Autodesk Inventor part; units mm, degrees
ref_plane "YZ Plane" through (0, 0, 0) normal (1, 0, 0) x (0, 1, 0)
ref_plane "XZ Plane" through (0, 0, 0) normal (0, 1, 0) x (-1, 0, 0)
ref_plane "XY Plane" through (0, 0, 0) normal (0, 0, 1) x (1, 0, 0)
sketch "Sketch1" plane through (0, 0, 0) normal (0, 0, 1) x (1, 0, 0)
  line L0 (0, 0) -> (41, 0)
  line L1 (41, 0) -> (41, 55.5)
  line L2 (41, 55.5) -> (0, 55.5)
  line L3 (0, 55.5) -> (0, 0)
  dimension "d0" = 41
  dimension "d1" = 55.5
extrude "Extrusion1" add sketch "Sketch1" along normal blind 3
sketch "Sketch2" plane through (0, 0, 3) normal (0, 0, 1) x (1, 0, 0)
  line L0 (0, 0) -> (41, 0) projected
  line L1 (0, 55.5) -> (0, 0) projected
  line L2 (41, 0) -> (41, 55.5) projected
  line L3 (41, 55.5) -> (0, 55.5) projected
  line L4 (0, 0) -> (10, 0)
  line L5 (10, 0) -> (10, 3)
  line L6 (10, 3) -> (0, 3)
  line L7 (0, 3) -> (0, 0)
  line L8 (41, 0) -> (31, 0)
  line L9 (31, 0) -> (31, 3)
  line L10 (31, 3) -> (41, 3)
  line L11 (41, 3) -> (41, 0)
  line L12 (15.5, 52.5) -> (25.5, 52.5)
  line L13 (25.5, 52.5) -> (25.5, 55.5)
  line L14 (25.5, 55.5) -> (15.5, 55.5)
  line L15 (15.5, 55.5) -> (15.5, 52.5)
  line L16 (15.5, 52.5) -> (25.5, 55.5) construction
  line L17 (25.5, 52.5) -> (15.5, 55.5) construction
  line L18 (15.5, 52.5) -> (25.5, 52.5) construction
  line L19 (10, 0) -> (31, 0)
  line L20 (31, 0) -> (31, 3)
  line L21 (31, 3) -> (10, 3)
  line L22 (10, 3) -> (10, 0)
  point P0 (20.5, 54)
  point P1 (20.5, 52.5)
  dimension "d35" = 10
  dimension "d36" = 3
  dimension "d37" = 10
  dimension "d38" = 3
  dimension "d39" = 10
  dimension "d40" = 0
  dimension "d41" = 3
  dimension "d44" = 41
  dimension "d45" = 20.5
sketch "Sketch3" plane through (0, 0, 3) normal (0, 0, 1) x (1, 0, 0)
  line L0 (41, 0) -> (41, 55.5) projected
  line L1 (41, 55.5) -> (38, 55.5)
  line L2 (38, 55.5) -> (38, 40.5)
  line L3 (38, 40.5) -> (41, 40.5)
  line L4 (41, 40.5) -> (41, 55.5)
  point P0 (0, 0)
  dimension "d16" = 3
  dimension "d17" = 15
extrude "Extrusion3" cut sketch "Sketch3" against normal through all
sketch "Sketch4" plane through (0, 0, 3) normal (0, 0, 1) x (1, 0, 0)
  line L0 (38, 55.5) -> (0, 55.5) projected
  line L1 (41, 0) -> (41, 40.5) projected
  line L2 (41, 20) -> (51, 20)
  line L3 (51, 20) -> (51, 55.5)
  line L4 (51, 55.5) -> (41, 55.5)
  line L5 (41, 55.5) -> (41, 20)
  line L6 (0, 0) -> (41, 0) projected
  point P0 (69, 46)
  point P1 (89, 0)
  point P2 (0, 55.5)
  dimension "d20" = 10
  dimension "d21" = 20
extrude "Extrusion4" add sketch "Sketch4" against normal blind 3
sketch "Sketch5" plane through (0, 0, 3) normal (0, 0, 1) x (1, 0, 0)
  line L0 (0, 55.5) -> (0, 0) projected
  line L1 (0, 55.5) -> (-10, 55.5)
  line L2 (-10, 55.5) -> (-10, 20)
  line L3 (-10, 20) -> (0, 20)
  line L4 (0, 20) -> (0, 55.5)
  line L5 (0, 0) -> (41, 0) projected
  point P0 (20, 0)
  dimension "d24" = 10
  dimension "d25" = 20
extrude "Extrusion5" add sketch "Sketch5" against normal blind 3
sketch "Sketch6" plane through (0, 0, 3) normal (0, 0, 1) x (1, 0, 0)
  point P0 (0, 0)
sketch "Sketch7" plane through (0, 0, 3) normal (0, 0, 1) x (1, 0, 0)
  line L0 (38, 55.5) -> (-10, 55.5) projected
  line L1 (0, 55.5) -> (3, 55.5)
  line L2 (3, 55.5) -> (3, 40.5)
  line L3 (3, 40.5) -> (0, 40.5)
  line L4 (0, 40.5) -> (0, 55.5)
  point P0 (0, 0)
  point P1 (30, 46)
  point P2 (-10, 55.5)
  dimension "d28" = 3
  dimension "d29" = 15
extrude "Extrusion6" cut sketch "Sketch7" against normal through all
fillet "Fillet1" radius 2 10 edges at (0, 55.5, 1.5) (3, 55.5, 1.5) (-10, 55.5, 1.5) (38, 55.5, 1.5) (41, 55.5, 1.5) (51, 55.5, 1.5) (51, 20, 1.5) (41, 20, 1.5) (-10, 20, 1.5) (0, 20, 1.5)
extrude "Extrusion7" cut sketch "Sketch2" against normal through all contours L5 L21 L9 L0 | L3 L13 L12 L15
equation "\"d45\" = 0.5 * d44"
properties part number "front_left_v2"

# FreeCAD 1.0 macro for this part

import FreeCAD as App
import Part
import Sketcher
Q = App.Units.Quantity


def edges_at(feature, points):
    """Names of the edges that pass closest to the given points."""
    edges = feature.Shape.Edges
    near = lambda p: min(range(len(edges)), key=lambda i: edges[i].distToShape(Part.Vertex(*p))[0])
    return sorted({f"Edge{near(p) + 1}" for p in points})

doc = App.newDocument("Part")
params = doc.addObject("Spreadsheet::Sheet", "Params")
for row, (alias, value) in enumerate([
    ("sketch1_width", "41 mm"),
    ("sketch1_height", "55.5 mm"),
    ("pad1_length", "3 mm"),
    ("sketch2_width", "3 mm"),
    ("sketch2_height", "15 mm"),
    ("sketch3_width", "10 mm"),
    ("sketch3_height", "35.5 mm"),
    ("pad2_length", "3 mm"),
    ("sketch4_width", "10 mm"),
    ("sketch4_height", "35.5 mm"),
    ("pad3_length", "3 mm"),
    ("sketch5_width", "3 mm"),
    ("sketch5_height", "15 mm"),
    ("fillet_radius", "2 mm"),
    ("sketch6_width", "10 mm"),
    ("sketch6_height", "3 mm"),
    ("sketch6_width2", "21 mm"),
], start=1):
    params.set(f"A{row}", alias)
    params.set(f"B{row}", "=" + value)
    params.setAlias(f"B{row}", alias)

body = doc.addObject("PartDesign::Body", "Body")

# Sketch on XY plane
sketch1 = body.newObject("Sketcher::SketchObject", "Sketch")
sketch1.AttachmentSupport = (doc.getObject("XY_Plane"), [""])
sketch1.MapMode = "FlatFace"
sketch1.addGeometry(Part.LineSegment(App.Vector(0, 55.5, 0), App.Vector(0, 0, 0)), False)
sketch1.addGeometry(Part.LineSegment(App.Vector(0, 0, 0), App.Vector(41, 0, 0)), False)
sketch1.addGeometry(Part.LineSegment(App.Vector(41, 0, 0), App.Vector(41, 55.5, 0)), False)
sketch1.addGeometry(Part.LineSegment(App.Vector(41, 55.5, 0), App.Vector(0, 55.5, 0)), False)
sketch1.addConstraint(Sketcher.Constraint("Coincident", 0, 2, 1, 1))
sketch1.addConstraint(Sketcher.Constraint("Coincident", 1, 2, 2, 1))
sketch1.addConstraint(Sketcher.Constraint("Coincident", 2, 2, 3, 1))
sketch1.addConstraint(Sketcher.Constraint("Coincident", 3, 2, 0, 1))
sketch1.addConstraint(Sketcher.Constraint("Vertical", 0))
sketch1.addConstraint(Sketcher.Constraint("Horizontal", 1))
sketch1.addConstraint(Sketcher.Constraint("Vertical", 2))
sketch1.addConstraint(Sketcher.Constraint("Horizontal", 3))
sketch1.addConstraint(Sketcher.Constraint("Coincident", 0, 2, -1, 1))
sketch1.addConstraint(Sketcher.Constraint("DistanceX", 1, 1, 1, 2, Q("41 mm")))
sketch1.addConstraint(Sketcher.Constraint("DistanceY", 0, 2, 0, 1, Q("55.5 mm")))
sketch1.setExpression("Constraints[9]", "Params.sketch1_width")
sketch1.setExpression("Constraints[10]", "Params.sketch1_height")
pad1 = body.newObject("PartDesign::Pad", "Pad")
pad1.Profile = sketch1
pad1.setExpression("Length", "Params.pad1_length")

# Sketch on XY plane
sketch2 = body.newObject("Sketcher::SketchObject", "Sketch001")
sketch2.AttachmentSupport = (doc.getObject("XY_Plane"), [""])
sketch2.MapMode = "FlatFace"
sketch2.AttachmentOffset = App.Placement(App.Vector(0, 0, 3), App.Rotation())
sketch2.addGeometry(Part.LineSegment(App.Vector(38, 40.5, 0), App.Vector(41, 40.5, 0)), False)
sketch2.addGeometry(Part.LineSegment(App.Vector(41, 40.5, 0), App.Vector(41, 55.5, 0)), False)
sketch2.addGeometry(Part.LineSegment(App.Vector(41, 55.5, 0), App.Vector(38, 55.5, 0)), False)
sketch2.addGeometry(Part.LineSegment(App.Vector(38, 55.5, 0), App.Vector(38, 40.5, 0)), False)
sketch2.addConstraint(Sketcher.Constraint("Coincident", 0, 2, 1, 1))
sketch2.addConstraint(Sketcher.Constraint("Coincident", 1, 2, 2, 1))
sketch2.addConstraint(Sketcher.Constraint("Coincident", 2, 2, 3, 1))
sketch2.addConstraint(Sketcher.Constraint("Coincident", 3, 2, 0, 1))
sketch2.addConstraint(Sketcher.Constraint("Horizontal", 0))
sketch2.addConstraint(Sketcher.Constraint("Vertical", 1))
sketch2.addConstraint(Sketcher.Constraint("Horizontal", 2))
sketch2.addConstraint(Sketcher.Constraint("Vertical", 3))
sketch2.addConstraint(Sketcher.Constraint("DistanceX", 0, 1, 0, 2, Q("3 mm")))
sketch2.addConstraint(Sketcher.Constraint("DistanceY", 1, 1, 1, 2, Q("15 mm")))
sketch2.addConstraint(Sketcher.Constraint("DistanceX", -1, 1, 0, 2, Q("41 mm")))
sketch2.addConstraint(Sketcher.Constraint("DistanceY", -1, 1, 0, 2, Q("40.5 mm")))
sketch2.setExpression("Constraints[8]", "Params.sketch2_width")
sketch2.setExpression("Constraints[9]", "Params.sketch2_height")
pocket1 = body.newObject("PartDesign::Pocket", "Pocket")
pocket1.Profile = sketch2
pocket1.Type = "ThroughAll"

# Sketch on XY plane
sketch3 = body.newObject("Sketcher::SketchObject", "Sketch002")
sketch3.AttachmentSupport = (doc.getObject("XY_Plane"), [""])
sketch3.MapMode = "FlatFace"
sketch3.AttachmentOffset = App.Placement(App.Vector(0, 0, 3), App.Rotation())
sketch3.addGeometry(Part.LineSegment(App.Vector(41, 55.5, 0), App.Vector(41, 20, 0)), False)
sketch3.addGeometry(Part.LineSegment(App.Vector(41, 20, 0), App.Vector(51, 20, 0)), False)
sketch3.addGeometry(Part.LineSegment(App.Vector(51, 20, 0), App.Vector(51, 55.5, 0)), False)
sketch3.addGeometry(Part.LineSegment(App.Vector(51, 55.5, 0), App.Vector(41, 55.5, 0)), False)
sketch3.addConstraint(Sketcher.Constraint("Coincident", 0, 2, 1, 1))
sketch3.addConstraint(Sketcher.Constraint("Coincident", 1, 2, 2, 1))
sketch3.addConstraint(Sketcher.Constraint("Coincident", 2, 2, 3, 1))
sketch3.addConstraint(Sketcher.Constraint("Coincident", 3, 2, 0, 1))
sketch3.addConstraint(Sketcher.Constraint("Vertical", 0))
sketch3.addConstraint(Sketcher.Constraint("Horizontal", 1))
sketch3.addConstraint(Sketcher.Constraint("Vertical", 2))
sketch3.addConstraint(Sketcher.Constraint("Horizontal", 3))
sketch3.addConstraint(Sketcher.Constraint("DistanceX", 1, 1, 1, 2, Q("10 mm")))
sketch3.addConstraint(Sketcher.Constraint("DistanceY", -1, 1, 0, 2, Q("20 mm")))
sketch3.addConstraint(Sketcher.Constraint("DistanceY", 0, 2, 0, 1, Q("35.5 mm")))
sketch3.addConstraint(Sketcher.Constraint("DistanceX", -1, 1, 0, 2, Q("41 mm")))
sketch3.setExpression("Constraints[8]", "Params.sketch3_width")
sketch3.setExpression("Constraints[10]", "Params.sketch3_height")
pad2 = body.newObject("PartDesign::Pad", "Pad001")
pad2.Profile = sketch3
pad2.setExpression("Length", "Params.pad2_length")
pad2.Reversed = True

# Sketch on XY plane
sketch4 = body.newObject("Sketcher::SketchObject", "Sketch003")
sketch4.AttachmentSupport = (doc.getObject("XY_Plane"), [""])
sketch4.MapMode = "FlatFace"
sketch4.AttachmentOffset = App.Placement(App.Vector(0, 0, 3), App.Rotation())
sketch4.addGeometry(Part.LineSegment(App.Vector(0, 20, 0), App.Vector(0, 55.5, 0)), False)
sketch4.addGeometry(Part.LineSegment(App.Vector(0, 55.5, 0), App.Vector(-10, 55.5, 0)), False)
sketch4.addGeometry(Part.LineSegment(App.Vector(-10, 55.5, 0), App.Vector(-10, 20, 0)), False)
sketch4.addGeometry(Part.LineSegment(App.Vector(-10, 20, 0), App.Vector(0, 20, 0)), False)
sketch4.addConstraint(Sketcher.Constraint("Coincident", 0, 2, 1, 1))
sketch4.addConstraint(Sketcher.Constraint("Coincident", 1, 2, 2, 1))
sketch4.addConstraint(Sketcher.Constraint("Coincident", 2, 2, 3, 1))
sketch4.addConstraint(Sketcher.Constraint("Coincident", 3, 2, 0, 1))
sketch4.addConstraint(Sketcher.Constraint("Vertical", 0))
sketch4.addConstraint(Sketcher.Constraint("Horizontal", 1))
sketch4.addConstraint(Sketcher.Constraint("Vertical", 2))
sketch4.addConstraint(Sketcher.Constraint("Horizontal", 3))
sketch4.addConstraint(Sketcher.Constraint("PointOnObject", 0, 2, -2))
sketch4.addConstraint(Sketcher.Constraint("DistanceX", 1, 2, 1, 1, Q("10 mm")))
sketch4.addConstraint(Sketcher.Constraint("DistanceY", -1, 1, 2, 2, Q("20 mm")))
sketch4.addConstraint(Sketcher.Constraint("DistanceY", 0, 1, 0, 2, Q("35.5 mm")))
sketch4.setExpression("Constraints[9]", "Params.sketch4_width")
sketch4.setExpression("Constraints[11]", "Params.sketch4_height")
pad3 = body.newObject("PartDesign::Pad", "Pad002")
pad3.Profile = sketch4
pad3.setExpression("Length", "Params.pad3_length")
pad3.Reversed = True

# Sketch on XY plane
sketch5 = body.newObject("Sketcher::SketchObject", "Sketch004")
sketch5.AttachmentSupport = (doc.getObject("XY_Plane"), [""])
sketch5.MapMode = "FlatFace"
sketch5.AttachmentOffset = App.Placement(App.Vector(0, 0, 3), App.Rotation())
sketch5.addGeometry(Part.LineSegment(App.Vector(3, 40.5, 0), App.Vector(3, 55.5, 0)), False)
sketch5.addGeometry(Part.LineSegment(App.Vector(3, 55.5, 0), App.Vector(0, 55.5, 0)), False)
sketch5.addGeometry(Part.LineSegment(App.Vector(0, 55.5, 0), App.Vector(0, 40.5, 0)), False)
sketch5.addGeometry(Part.LineSegment(App.Vector(0, 40.5, 0), App.Vector(3, 40.5, 0)), False)
sketch5.addConstraint(Sketcher.Constraint("Coincident", 0, 2, 1, 1))
sketch5.addConstraint(Sketcher.Constraint("Coincident", 1, 2, 2, 1))
sketch5.addConstraint(Sketcher.Constraint("Coincident", 2, 2, 3, 1))
sketch5.addConstraint(Sketcher.Constraint("Coincident", 3, 2, 0, 1))
sketch5.addConstraint(Sketcher.Constraint("Vertical", 0))
sketch5.addConstraint(Sketcher.Constraint("Horizontal", 1))
sketch5.addConstraint(Sketcher.Constraint("Vertical", 2))
sketch5.addConstraint(Sketcher.Constraint("Horizontal", 3))
sketch5.addConstraint(Sketcher.Constraint("PointOnObject", 1, 2, -2))
sketch5.addConstraint(Sketcher.Constraint("DistanceX", 1, 2, 1, 1, Q("3 mm")))
sketch5.addConstraint(Sketcher.Constraint("DistanceY", 0, 1, 0, 2, Q("15 mm")))
sketch5.addConstraint(Sketcher.Constraint("DistanceY", -1, 1, 0, 2, Q("55.5 mm")))
sketch5.setExpression("Constraints[9]", "Params.sketch5_width")
sketch5.setExpression("Constraints[10]", "Params.sketch5_height")
pocket2 = body.newObject("PartDesign::Pocket", "Pocket001")
pocket2.Profile = sketch5
pocket2.Type = "ThroughAll"
doc.recompute()

fillet = body.newObject("PartDesign::Fillet", "Fillet")
fillet.Base = (pocket2, edges_at(pocket2, [
    (0, 55.5, 1.5),
    (3, 55.5, 1.5),
    (-10, 55.5, 1.5),
    (38, 55.5, 1.5),
    (41, 55.5, 1.5),
    (51, 55.5, 1.5),
    (51, 20, 1.5),
    (41, 20, 1.5),
    (-10, 20, 1.5),
    (0, 20, 1.5),
]))
fillet.setExpression("Radius", "Params.fillet_radius")

# Sketch on XY plane
sketch6 = body.newObject("Sketcher::SketchObject", "Sketch005")
sketch6.AttachmentSupport = (doc.getObject("XY_Plane"), [""])
sketch6.MapMode = "FlatFace"
sketch6.AttachmentOffset = App.Placement(App.Vector(0, 0, 3), App.Rotation())
sketch6.addGeometry(Part.LineSegment(App.Vector(10, 3, 0), App.Vector(10, 0, 0)), False)
sketch6.addGeometry(Part.LineSegment(App.Vector(10, 0, 0), App.Vector(31, 0, 0)), False)
sketch6.addGeometry(Part.LineSegment(App.Vector(31, 0, 0), App.Vector(31, 3, 0)), False)
sketch6.addGeometry(Part.LineSegment(App.Vector(31, 3, 0), App.Vector(10, 3, 0)), False)
sketch6.addGeometry(Part.LineSegment(App.Vector(25.5, 55.5, 0), App.Vector(15.5, 55.5, 0)), False)
sketch6.addGeometry(Part.LineSegment(App.Vector(15.5, 55.5, 0), App.Vector(15.5, 52.5, 0)), False)
sketch6.addGeometry(Part.LineSegment(App.Vector(15.5, 52.5, 0), App.Vector(25.5, 52.5, 0)), False)
sketch6.addGeometry(Part.LineSegment(App.Vector(25.5, 52.5, 0), App.Vector(25.5, 55.5, 0)), False)
sketch6.addConstraint(Sketcher.Constraint("Coincident", 0, 2, 1, 1))
sketch6.addConstraint(Sketcher.Constraint("Coincident", 1, 2, 2, 1))
sketch6.addConstraint(Sketcher.Constraint("Coincident", 2, 2, 3, 1))
sketch6.addConstraint(Sketcher.Constraint("Coincident", 3, 2, 0, 1))
sketch6.addConstraint(Sketcher.Constraint("Coincident", 4, 2, 5, 1))
sketch6.addConstraint(Sketcher.Constraint("Coincident", 5, 2, 6, 1))
sketch6.addConstraint(Sketcher.Constraint("Coincident", 6, 2, 7, 1))
sketch6.addConstraint(Sketcher.Constraint("Coincident", 7, 2, 4, 1))
sketch6.addConstraint(Sketcher.Constraint("Vertical", 0))
sketch6.addConstraint(Sketcher.Constraint("Horizontal", 1))
sketch6.addConstraint(Sketcher.Constraint("Vertical", 2))
sketch6.addConstraint(Sketcher.Constraint("Horizontal", 3))
sketch6.addConstraint(Sketcher.Constraint("Horizontal", 4))
sketch6.addConstraint(Sketcher.Constraint("Vertical", 5))
sketch6.addConstraint(Sketcher.Constraint("Horizontal", 6))
sketch6.addConstraint(Sketcher.Constraint("Vertical", 7))
sketch6.addConstraint(Sketcher.Constraint("PointOnObject", 0, 2, -1))
sketch6.addConstraint(Sketcher.Constraint("Equal", 2, 5))
sketch6.addConstraint(Sketcher.Constraint("DistanceX", 4, 2, 4, 1, Q("10 mm")))
sketch6.addConstraint(Sketcher.Constraint("DistanceY", 0, 2, 0, 1, Q("3 mm")))
sketch6.addConstraint(Sketcher.Constraint("DistanceX", -1, 1, 0, 2, Q("10 mm")))
sketch6.addConstraint(Sketcher.Constraint("DistanceX", 1, 1, 1, 2, Q("21 mm")))
sketch6.addConstraint(Sketcher.Constraint("DistanceX", -1, 1, 4, 2, Q("15.5 mm")))
sketch6.addConstraint(Sketcher.Constraint("DistanceY", -1, 1, 4, 2, Q("55.5 mm")))
sketch6.setExpression("Constraints[18]", "Params.sketch6_width")
sketch6.setExpression("Constraints[19]", "Params.sketch6_height")
sketch6.setExpression("Constraints[21]", "Params.sketch6_width2")
pocket3 = body.newObject("PartDesign::Pocket", "Pocket002")
pocket3.Profile = sketch6
pocket3.Type = "ThroughAll"

doc.recompute()
